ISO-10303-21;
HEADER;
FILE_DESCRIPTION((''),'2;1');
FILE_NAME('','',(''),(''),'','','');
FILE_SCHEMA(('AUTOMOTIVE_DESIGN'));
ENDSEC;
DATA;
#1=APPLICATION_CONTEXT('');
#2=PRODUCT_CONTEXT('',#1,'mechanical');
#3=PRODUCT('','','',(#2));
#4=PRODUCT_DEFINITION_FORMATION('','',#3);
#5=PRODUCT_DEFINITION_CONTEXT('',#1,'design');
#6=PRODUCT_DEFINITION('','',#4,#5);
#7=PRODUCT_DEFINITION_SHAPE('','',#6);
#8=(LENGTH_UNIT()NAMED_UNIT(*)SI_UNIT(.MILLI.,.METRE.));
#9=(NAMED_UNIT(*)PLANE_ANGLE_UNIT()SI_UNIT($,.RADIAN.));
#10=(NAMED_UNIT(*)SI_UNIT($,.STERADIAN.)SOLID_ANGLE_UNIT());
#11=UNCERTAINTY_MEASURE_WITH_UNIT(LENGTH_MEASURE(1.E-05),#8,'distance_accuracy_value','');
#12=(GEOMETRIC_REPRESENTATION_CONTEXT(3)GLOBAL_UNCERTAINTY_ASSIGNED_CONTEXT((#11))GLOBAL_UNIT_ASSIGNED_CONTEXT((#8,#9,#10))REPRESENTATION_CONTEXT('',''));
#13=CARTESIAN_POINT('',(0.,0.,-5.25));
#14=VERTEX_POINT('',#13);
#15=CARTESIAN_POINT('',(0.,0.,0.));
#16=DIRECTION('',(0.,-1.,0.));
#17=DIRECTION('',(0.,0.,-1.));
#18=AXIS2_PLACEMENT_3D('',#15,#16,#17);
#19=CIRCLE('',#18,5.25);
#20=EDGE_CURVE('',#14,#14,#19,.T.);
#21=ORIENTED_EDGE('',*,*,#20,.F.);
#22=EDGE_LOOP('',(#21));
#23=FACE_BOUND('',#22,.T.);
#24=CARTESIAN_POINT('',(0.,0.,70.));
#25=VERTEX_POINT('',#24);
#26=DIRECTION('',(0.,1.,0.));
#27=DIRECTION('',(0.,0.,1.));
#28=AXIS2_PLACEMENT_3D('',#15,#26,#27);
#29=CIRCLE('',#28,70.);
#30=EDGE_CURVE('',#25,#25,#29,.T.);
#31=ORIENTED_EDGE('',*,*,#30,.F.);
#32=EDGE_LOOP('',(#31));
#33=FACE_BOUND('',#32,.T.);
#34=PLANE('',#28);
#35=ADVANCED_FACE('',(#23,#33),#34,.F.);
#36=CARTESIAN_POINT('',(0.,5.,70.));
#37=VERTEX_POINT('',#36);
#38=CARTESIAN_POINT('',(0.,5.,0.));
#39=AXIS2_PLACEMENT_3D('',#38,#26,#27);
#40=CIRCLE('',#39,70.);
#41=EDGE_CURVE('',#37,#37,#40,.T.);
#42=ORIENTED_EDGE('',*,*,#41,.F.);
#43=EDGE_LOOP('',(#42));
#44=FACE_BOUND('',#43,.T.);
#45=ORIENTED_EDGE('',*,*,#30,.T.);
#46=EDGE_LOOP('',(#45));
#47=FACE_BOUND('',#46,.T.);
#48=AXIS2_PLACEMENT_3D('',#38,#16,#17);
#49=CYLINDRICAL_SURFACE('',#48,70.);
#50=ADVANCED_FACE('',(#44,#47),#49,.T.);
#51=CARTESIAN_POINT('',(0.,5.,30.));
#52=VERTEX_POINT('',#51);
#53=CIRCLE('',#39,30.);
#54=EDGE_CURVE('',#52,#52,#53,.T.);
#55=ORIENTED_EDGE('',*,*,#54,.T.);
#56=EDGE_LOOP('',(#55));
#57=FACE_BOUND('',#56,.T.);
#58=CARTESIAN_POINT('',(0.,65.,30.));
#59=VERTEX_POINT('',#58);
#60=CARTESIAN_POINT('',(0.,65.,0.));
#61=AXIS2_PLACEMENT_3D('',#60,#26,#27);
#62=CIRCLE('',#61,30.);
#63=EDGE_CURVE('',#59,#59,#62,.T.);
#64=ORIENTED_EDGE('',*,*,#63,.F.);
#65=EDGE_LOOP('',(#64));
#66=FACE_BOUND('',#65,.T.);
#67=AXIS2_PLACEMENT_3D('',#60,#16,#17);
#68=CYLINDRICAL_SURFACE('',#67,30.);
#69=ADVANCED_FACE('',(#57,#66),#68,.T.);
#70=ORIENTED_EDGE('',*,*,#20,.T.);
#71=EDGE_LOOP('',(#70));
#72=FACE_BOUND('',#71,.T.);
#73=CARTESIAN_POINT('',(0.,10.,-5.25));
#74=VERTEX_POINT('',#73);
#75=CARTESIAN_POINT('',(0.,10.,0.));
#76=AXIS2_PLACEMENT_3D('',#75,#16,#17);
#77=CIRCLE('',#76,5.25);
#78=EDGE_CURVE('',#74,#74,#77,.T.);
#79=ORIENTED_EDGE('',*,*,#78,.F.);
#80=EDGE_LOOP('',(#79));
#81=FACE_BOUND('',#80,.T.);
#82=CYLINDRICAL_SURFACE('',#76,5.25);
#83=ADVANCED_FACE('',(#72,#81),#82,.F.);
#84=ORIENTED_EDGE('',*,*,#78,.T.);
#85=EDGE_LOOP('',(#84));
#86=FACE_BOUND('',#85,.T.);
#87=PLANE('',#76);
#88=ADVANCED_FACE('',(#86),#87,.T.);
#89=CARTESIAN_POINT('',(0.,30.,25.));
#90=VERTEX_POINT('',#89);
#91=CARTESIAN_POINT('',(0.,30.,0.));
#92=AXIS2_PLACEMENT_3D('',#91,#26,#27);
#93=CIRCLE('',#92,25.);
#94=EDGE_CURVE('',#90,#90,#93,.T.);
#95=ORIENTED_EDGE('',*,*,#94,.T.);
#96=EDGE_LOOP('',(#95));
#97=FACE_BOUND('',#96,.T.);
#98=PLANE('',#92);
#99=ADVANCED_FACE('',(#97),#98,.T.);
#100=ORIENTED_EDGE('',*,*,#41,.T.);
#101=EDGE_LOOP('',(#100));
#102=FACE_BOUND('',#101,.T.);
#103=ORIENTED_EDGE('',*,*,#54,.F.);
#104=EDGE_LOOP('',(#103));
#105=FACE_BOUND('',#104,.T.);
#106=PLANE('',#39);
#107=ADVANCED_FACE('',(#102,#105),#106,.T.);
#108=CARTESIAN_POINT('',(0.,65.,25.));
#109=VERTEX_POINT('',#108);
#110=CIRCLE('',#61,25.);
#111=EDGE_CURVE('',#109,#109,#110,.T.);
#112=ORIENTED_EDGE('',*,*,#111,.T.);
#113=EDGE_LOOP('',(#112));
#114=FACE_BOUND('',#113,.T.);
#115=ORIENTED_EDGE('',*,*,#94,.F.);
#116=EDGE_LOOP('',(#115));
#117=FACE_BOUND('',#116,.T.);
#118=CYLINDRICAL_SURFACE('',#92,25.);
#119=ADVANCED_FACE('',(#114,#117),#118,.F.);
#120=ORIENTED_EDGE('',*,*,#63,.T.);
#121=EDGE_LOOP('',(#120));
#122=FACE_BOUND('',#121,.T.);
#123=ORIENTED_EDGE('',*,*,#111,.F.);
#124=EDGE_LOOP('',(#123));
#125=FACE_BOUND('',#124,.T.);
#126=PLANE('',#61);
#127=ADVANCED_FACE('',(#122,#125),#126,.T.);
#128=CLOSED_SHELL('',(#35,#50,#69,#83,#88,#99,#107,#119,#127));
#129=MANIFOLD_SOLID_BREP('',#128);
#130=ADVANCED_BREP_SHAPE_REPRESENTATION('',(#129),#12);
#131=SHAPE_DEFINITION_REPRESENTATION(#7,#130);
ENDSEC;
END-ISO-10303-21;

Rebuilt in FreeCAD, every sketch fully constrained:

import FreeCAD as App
import Part
import Sketcher
from FreeCAD import Vector
Q = App.Units.Quantity

doc = App.newDocument("Part")
body = doc.addObject("PartDesign::Body", "Body")

sketch1 = body.newObject("Sketcher::SketchObject", "Sketch")
sketch1.AttachmentSupport = (doc.getObject("XZ_Plane"), [""])
sketch1.MapMode = "FlatFace"
sketch1.addGeometry(Part.Circle(Vector(0, 0, 0), Vector(0, 0, 1), 70), False)
sketch1.addConstraint([
    Sketcher.Constraint("Coincident", 0, 3, -1, 1),
    Sketcher.Constraint("Diameter", 0, Q("140 mm")),
])
pad1 = body.newObject("PartDesign::Pad", "Pad")
pad1.Profile = sketch1
pad1.Length = 5
pad1.Reversed = True

sketch2 = body.newObject("Sketcher::SketchObject", "Sketch001")
sketch2.AttachmentSupport = (doc.getObject("XZ_Plane"), [""])
sketch2.MapMode = "FlatFace"
sketch2.AttachmentOffset = App.Placement(Vector(0, 0, -5), App.Rotation())
sketch2.addGeometry(Part.Circle(Vector(0, 0, 0), Vector(0, 0, 1), 30), False)
sketch2.addConstraint([
    Sketcher.Constraint("Coincident", 0, 3, -1, 1),
    Sketcher.Constraint("Diameter", 0, Q("60 mm")),
])
pad2 = body.newObject("PartDesign::Pad", "Pad001")
pad2.Profile = sketch2
pad2.Length = 60
pad2.Reversed = True

sketch3 = body.newObject("Sketcher::SketchObject", "Sketch002")
sketch3.AttachmentSupport = (doc.getObject("XZ_Plane"), [""])
sketch3.MapMode = "FlatFace"
sketch3.addGeometry(Part.Circle(Vector(0, 0, 0), Vector(0, 0, 1), 5), False)
sketch3.addConstraint([
    Sketcher.Constraint("Coincident", 0, 3, -1, 1),
    Sketcher.Constraint("Diameter", 0, Q("10.5 mm")),
])
pocket1 = body.newObject("PartDesign::Pocket", "Pocket")
pocket1.Profile = sketch3
pocket1.Length = 10

sketch4 = body.newObject("Sketcher::SketchObject", "Sketch003")
sketch4.AttachmentSupport = (doc.getObject("XZ_Plane"), [""])
sketch4.MapMode = "FlatFace"
sketch4.AttachmentOffset = App.Placement(Vector(0, 0, -65), App.Rotation())
sketch4.addGeometry(Part.Circle(Vector(0, 0, 0), Vector(0, 0, 1), 25), False)
sketch4.addConstraint([
    Sketcher.Constraint("Coincident", 0, 3, -1, 1),
    Sketcher.Constraint("Diameter", 0, Q("50 mm")),
])
pocket2 = body.newObject("PartDesign::Pocket", "Pocket001")
pocket2.Profile = sketch4
pocket2.Length = 35
pocket2.Reversed = True

doc.recompute()
